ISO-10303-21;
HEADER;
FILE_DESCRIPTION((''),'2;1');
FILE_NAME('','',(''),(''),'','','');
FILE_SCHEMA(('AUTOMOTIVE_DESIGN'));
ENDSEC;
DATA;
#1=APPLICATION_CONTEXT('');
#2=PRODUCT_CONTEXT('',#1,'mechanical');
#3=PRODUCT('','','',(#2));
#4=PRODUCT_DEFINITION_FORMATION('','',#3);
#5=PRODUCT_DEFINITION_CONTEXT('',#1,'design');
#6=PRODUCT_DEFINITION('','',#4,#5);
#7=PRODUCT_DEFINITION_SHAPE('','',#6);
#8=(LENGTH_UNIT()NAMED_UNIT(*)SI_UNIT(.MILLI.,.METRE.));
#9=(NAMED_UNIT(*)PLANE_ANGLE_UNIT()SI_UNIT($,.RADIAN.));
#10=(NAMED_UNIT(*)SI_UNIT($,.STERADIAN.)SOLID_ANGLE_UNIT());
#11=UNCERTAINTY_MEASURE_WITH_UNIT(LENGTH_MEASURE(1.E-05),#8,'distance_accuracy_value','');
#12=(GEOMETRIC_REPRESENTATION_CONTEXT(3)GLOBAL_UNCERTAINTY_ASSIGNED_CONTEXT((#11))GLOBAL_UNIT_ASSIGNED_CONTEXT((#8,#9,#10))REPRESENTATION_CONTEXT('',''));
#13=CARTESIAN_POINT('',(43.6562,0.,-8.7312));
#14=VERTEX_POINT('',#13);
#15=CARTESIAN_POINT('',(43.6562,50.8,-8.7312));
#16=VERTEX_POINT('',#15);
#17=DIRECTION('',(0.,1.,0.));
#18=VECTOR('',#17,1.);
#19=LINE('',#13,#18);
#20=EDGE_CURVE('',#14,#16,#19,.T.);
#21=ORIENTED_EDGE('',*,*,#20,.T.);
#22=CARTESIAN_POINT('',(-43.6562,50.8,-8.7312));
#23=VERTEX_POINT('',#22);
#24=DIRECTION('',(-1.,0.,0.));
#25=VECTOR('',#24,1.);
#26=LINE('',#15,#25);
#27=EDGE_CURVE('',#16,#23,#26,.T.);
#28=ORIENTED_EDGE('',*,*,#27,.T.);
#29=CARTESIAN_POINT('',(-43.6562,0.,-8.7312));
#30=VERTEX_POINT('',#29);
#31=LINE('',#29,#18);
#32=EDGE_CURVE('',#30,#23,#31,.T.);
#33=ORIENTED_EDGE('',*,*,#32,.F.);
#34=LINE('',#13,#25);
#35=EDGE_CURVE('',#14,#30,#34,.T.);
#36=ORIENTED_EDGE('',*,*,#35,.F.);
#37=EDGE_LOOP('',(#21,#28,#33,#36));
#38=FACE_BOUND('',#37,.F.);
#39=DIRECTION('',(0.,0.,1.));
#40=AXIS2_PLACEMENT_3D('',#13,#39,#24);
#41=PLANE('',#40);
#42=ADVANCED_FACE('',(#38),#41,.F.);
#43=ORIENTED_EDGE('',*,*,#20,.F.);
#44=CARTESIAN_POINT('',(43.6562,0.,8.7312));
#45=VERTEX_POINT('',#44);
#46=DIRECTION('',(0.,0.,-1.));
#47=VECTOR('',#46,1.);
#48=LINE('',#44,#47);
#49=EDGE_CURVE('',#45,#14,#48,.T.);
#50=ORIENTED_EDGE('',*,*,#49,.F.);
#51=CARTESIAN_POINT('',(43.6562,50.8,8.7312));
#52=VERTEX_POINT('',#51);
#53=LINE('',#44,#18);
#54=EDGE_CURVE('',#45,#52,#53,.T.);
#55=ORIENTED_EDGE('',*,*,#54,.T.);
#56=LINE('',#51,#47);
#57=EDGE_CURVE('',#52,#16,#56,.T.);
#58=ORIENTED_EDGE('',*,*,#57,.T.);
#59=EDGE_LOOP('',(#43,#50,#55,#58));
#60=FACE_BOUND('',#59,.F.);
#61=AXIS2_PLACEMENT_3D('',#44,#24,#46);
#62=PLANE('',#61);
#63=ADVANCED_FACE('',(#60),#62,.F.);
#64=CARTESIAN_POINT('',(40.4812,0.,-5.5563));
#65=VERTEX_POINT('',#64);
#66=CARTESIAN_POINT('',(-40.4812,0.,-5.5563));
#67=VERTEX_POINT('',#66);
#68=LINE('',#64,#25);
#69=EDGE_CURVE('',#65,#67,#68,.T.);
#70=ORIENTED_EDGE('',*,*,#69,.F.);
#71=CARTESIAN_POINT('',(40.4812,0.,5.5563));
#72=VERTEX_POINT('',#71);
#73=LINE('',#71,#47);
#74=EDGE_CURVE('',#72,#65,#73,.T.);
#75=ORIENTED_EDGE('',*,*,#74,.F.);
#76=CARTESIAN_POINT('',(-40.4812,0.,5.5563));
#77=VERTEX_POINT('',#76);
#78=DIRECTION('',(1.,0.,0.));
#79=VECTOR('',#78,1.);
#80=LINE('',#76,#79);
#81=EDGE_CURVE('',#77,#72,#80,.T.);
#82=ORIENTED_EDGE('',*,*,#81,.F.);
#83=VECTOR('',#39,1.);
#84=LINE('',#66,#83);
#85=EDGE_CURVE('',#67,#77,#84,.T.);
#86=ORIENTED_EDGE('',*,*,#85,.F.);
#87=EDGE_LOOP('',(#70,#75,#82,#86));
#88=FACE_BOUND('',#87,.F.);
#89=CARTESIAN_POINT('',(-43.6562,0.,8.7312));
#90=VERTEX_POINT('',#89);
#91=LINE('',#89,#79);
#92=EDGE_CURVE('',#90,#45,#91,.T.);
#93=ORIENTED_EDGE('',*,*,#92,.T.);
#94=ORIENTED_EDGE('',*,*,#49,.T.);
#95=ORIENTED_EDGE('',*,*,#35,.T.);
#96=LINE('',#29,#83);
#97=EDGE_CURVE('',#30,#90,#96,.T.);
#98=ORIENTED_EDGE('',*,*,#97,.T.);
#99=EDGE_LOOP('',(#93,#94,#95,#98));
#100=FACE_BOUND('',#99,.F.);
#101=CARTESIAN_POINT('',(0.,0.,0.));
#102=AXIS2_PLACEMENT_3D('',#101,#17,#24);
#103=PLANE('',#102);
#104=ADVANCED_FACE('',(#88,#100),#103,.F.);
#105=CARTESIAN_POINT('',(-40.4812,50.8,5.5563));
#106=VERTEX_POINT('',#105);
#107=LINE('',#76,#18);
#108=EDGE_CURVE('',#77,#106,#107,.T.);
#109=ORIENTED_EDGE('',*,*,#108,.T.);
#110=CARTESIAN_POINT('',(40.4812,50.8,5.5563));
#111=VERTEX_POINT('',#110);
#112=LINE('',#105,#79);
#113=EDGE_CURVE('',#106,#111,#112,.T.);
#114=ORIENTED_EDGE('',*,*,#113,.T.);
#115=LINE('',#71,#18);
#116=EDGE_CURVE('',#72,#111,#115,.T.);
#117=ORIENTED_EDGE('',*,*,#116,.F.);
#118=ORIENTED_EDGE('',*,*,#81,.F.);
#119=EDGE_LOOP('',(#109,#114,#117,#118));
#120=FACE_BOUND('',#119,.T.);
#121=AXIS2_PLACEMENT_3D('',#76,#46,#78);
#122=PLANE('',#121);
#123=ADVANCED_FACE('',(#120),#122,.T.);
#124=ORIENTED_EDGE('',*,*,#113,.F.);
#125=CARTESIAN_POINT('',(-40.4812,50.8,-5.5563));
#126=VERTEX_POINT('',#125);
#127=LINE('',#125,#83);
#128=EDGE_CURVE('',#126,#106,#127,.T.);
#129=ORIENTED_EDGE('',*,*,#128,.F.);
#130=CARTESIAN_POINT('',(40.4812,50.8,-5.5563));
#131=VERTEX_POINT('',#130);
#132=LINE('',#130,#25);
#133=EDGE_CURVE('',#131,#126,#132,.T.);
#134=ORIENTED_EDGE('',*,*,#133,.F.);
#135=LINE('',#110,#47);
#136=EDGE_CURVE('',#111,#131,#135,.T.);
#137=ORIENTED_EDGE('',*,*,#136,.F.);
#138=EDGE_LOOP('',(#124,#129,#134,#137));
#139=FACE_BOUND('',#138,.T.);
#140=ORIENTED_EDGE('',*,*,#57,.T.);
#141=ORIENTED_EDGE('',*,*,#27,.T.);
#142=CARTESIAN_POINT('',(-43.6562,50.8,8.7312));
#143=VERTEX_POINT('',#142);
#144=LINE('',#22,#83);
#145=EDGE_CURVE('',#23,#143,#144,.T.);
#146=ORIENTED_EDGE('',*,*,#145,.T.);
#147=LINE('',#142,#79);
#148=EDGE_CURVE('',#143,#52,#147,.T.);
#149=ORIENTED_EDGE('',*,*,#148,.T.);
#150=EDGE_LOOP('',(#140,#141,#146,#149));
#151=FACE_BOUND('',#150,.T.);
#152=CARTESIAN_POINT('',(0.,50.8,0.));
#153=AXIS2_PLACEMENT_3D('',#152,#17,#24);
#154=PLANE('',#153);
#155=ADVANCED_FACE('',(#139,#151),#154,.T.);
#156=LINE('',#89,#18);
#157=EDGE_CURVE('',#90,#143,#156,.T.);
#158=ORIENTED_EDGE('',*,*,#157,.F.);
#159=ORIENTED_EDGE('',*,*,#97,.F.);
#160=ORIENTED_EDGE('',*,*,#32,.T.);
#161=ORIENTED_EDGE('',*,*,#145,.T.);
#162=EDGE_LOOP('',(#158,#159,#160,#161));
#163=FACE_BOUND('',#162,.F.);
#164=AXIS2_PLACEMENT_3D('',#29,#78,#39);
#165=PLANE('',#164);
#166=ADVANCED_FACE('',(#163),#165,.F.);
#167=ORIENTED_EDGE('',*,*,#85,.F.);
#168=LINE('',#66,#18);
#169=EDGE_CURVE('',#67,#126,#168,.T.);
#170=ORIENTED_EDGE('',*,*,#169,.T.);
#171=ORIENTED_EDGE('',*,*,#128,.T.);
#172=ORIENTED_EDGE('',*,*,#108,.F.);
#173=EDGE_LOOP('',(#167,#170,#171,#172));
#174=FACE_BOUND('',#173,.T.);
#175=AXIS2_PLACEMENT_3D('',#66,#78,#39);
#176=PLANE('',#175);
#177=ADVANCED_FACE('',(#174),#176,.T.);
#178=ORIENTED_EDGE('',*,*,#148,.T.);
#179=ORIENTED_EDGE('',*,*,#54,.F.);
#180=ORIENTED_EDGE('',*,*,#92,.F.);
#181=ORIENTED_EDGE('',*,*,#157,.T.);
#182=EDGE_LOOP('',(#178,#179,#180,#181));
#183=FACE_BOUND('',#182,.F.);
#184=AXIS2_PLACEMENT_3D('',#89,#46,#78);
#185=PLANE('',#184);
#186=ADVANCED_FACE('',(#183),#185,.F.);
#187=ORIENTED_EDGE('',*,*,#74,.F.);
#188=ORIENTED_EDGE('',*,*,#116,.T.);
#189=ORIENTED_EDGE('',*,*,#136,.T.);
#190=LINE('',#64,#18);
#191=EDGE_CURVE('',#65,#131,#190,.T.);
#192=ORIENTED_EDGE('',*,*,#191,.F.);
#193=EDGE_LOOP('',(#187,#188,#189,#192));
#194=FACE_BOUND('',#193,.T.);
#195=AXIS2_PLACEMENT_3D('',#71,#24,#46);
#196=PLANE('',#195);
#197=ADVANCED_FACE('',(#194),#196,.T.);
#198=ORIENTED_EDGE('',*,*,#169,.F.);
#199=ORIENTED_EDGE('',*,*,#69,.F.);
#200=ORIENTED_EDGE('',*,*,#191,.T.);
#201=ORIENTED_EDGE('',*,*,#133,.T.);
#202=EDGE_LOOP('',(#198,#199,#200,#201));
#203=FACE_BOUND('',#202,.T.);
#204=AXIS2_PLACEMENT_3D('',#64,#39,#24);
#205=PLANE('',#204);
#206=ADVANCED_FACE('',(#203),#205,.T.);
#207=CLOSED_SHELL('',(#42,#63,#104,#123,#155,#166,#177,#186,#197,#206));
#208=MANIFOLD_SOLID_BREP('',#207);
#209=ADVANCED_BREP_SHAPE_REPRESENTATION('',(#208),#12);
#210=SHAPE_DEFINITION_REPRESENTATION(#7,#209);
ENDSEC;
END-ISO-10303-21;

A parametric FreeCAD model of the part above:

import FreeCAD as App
import Part
import Sketcher
from FreeCAD import Vector
Q = App.Units.Quantity


def add_polygon(sketch, points):
    """Adds a closed chain of lines whose ends are joined by coincident constraints."""
    first, n = sketch.GeometryCount, len(points)
    for a, b in zip(points, points[1:] + points[:1]):
        sketch.addGeometry(Part.LineSegment(App.Vector(*a, 0), App.Vector(*b, 0)), False)
    for i in range(n):
        sketch.addConstraint(Sketcher.Constraint("Coincident", first + i, 2, first + (i + 1) % n, 1))

doc = App.newDocument("Part")
body = doc.addObject("PartDesign::Body", "Body")

sketch1 = doc.addObject("Sketcher::SketchObject", "Sketch")
body.addObject(sketch1)
sketch1.AttachmentSupport = (doc.XZ_Plane, [""])
sketch1.MapMode = "FlatFace"
add_polygon(sketch1, [(-44, 9), (44, 9), (44, -9), (-44, -9)])
add_polygon(sketch1, [(40, -6), (40, 6), (-40, 6), (-40, -6)])
sketch1.addConstraint(Sketcher.Constraint("Horizontal", 0))
sketch1.addConstraint(Sketcher.Constraint("Vertical", 1))
sketch1.addConstraint(Sketcher.Constraint("Horizontal", 2))
sketch1.addConstraint(Sketcher.Constraint("Vertical", 3))
sketch1.addConstraint(Sketcher.Constraint("Vertical", 4))
sketch1.addConstraint(Sketcher.Constraint("Horizontal", 5))
sketch1.addConstraint(Sketcher.Constraint("Vertical", 6))
sketch1.addConstraint(Sketcher.Constraint("Horizontal", 7))
sketch1.addConstraint(Sketcher.Constraint("Symmetric", 0, 2, 2, 2, -1, 1))
sketch1.addConstraint(Sketcher.Constraint("Symmetric", 4, 2, 6, 2, -1, 1))
sketch1.addConstraint(Sketcher.Constraint("DistanceX", 0, 1, 0, 2, Q("3.4375 in")))
sketch1.addConstraint(Sketcher.Constraint("DistanceY", 1, 2, 1, 1, Q("0.6875 in")))
sketch1.addConstraint(Sketcher.Constraint("DistanceX", 4, 2, 0, 2, Q("0.125 in")))
sketch1.addConstraint(Sketcher.Constraint("DistanceY", 4, 2, 0, 2, Q("0.125 in")))
pad1 = doc.addObject("PartDesign::Pad", "Pad")
body.addObject(pad1)
pad1.Profile = sketch1
pad1.Length = Q("2 in")
pad1.Reversed = True

doc.recompute()
